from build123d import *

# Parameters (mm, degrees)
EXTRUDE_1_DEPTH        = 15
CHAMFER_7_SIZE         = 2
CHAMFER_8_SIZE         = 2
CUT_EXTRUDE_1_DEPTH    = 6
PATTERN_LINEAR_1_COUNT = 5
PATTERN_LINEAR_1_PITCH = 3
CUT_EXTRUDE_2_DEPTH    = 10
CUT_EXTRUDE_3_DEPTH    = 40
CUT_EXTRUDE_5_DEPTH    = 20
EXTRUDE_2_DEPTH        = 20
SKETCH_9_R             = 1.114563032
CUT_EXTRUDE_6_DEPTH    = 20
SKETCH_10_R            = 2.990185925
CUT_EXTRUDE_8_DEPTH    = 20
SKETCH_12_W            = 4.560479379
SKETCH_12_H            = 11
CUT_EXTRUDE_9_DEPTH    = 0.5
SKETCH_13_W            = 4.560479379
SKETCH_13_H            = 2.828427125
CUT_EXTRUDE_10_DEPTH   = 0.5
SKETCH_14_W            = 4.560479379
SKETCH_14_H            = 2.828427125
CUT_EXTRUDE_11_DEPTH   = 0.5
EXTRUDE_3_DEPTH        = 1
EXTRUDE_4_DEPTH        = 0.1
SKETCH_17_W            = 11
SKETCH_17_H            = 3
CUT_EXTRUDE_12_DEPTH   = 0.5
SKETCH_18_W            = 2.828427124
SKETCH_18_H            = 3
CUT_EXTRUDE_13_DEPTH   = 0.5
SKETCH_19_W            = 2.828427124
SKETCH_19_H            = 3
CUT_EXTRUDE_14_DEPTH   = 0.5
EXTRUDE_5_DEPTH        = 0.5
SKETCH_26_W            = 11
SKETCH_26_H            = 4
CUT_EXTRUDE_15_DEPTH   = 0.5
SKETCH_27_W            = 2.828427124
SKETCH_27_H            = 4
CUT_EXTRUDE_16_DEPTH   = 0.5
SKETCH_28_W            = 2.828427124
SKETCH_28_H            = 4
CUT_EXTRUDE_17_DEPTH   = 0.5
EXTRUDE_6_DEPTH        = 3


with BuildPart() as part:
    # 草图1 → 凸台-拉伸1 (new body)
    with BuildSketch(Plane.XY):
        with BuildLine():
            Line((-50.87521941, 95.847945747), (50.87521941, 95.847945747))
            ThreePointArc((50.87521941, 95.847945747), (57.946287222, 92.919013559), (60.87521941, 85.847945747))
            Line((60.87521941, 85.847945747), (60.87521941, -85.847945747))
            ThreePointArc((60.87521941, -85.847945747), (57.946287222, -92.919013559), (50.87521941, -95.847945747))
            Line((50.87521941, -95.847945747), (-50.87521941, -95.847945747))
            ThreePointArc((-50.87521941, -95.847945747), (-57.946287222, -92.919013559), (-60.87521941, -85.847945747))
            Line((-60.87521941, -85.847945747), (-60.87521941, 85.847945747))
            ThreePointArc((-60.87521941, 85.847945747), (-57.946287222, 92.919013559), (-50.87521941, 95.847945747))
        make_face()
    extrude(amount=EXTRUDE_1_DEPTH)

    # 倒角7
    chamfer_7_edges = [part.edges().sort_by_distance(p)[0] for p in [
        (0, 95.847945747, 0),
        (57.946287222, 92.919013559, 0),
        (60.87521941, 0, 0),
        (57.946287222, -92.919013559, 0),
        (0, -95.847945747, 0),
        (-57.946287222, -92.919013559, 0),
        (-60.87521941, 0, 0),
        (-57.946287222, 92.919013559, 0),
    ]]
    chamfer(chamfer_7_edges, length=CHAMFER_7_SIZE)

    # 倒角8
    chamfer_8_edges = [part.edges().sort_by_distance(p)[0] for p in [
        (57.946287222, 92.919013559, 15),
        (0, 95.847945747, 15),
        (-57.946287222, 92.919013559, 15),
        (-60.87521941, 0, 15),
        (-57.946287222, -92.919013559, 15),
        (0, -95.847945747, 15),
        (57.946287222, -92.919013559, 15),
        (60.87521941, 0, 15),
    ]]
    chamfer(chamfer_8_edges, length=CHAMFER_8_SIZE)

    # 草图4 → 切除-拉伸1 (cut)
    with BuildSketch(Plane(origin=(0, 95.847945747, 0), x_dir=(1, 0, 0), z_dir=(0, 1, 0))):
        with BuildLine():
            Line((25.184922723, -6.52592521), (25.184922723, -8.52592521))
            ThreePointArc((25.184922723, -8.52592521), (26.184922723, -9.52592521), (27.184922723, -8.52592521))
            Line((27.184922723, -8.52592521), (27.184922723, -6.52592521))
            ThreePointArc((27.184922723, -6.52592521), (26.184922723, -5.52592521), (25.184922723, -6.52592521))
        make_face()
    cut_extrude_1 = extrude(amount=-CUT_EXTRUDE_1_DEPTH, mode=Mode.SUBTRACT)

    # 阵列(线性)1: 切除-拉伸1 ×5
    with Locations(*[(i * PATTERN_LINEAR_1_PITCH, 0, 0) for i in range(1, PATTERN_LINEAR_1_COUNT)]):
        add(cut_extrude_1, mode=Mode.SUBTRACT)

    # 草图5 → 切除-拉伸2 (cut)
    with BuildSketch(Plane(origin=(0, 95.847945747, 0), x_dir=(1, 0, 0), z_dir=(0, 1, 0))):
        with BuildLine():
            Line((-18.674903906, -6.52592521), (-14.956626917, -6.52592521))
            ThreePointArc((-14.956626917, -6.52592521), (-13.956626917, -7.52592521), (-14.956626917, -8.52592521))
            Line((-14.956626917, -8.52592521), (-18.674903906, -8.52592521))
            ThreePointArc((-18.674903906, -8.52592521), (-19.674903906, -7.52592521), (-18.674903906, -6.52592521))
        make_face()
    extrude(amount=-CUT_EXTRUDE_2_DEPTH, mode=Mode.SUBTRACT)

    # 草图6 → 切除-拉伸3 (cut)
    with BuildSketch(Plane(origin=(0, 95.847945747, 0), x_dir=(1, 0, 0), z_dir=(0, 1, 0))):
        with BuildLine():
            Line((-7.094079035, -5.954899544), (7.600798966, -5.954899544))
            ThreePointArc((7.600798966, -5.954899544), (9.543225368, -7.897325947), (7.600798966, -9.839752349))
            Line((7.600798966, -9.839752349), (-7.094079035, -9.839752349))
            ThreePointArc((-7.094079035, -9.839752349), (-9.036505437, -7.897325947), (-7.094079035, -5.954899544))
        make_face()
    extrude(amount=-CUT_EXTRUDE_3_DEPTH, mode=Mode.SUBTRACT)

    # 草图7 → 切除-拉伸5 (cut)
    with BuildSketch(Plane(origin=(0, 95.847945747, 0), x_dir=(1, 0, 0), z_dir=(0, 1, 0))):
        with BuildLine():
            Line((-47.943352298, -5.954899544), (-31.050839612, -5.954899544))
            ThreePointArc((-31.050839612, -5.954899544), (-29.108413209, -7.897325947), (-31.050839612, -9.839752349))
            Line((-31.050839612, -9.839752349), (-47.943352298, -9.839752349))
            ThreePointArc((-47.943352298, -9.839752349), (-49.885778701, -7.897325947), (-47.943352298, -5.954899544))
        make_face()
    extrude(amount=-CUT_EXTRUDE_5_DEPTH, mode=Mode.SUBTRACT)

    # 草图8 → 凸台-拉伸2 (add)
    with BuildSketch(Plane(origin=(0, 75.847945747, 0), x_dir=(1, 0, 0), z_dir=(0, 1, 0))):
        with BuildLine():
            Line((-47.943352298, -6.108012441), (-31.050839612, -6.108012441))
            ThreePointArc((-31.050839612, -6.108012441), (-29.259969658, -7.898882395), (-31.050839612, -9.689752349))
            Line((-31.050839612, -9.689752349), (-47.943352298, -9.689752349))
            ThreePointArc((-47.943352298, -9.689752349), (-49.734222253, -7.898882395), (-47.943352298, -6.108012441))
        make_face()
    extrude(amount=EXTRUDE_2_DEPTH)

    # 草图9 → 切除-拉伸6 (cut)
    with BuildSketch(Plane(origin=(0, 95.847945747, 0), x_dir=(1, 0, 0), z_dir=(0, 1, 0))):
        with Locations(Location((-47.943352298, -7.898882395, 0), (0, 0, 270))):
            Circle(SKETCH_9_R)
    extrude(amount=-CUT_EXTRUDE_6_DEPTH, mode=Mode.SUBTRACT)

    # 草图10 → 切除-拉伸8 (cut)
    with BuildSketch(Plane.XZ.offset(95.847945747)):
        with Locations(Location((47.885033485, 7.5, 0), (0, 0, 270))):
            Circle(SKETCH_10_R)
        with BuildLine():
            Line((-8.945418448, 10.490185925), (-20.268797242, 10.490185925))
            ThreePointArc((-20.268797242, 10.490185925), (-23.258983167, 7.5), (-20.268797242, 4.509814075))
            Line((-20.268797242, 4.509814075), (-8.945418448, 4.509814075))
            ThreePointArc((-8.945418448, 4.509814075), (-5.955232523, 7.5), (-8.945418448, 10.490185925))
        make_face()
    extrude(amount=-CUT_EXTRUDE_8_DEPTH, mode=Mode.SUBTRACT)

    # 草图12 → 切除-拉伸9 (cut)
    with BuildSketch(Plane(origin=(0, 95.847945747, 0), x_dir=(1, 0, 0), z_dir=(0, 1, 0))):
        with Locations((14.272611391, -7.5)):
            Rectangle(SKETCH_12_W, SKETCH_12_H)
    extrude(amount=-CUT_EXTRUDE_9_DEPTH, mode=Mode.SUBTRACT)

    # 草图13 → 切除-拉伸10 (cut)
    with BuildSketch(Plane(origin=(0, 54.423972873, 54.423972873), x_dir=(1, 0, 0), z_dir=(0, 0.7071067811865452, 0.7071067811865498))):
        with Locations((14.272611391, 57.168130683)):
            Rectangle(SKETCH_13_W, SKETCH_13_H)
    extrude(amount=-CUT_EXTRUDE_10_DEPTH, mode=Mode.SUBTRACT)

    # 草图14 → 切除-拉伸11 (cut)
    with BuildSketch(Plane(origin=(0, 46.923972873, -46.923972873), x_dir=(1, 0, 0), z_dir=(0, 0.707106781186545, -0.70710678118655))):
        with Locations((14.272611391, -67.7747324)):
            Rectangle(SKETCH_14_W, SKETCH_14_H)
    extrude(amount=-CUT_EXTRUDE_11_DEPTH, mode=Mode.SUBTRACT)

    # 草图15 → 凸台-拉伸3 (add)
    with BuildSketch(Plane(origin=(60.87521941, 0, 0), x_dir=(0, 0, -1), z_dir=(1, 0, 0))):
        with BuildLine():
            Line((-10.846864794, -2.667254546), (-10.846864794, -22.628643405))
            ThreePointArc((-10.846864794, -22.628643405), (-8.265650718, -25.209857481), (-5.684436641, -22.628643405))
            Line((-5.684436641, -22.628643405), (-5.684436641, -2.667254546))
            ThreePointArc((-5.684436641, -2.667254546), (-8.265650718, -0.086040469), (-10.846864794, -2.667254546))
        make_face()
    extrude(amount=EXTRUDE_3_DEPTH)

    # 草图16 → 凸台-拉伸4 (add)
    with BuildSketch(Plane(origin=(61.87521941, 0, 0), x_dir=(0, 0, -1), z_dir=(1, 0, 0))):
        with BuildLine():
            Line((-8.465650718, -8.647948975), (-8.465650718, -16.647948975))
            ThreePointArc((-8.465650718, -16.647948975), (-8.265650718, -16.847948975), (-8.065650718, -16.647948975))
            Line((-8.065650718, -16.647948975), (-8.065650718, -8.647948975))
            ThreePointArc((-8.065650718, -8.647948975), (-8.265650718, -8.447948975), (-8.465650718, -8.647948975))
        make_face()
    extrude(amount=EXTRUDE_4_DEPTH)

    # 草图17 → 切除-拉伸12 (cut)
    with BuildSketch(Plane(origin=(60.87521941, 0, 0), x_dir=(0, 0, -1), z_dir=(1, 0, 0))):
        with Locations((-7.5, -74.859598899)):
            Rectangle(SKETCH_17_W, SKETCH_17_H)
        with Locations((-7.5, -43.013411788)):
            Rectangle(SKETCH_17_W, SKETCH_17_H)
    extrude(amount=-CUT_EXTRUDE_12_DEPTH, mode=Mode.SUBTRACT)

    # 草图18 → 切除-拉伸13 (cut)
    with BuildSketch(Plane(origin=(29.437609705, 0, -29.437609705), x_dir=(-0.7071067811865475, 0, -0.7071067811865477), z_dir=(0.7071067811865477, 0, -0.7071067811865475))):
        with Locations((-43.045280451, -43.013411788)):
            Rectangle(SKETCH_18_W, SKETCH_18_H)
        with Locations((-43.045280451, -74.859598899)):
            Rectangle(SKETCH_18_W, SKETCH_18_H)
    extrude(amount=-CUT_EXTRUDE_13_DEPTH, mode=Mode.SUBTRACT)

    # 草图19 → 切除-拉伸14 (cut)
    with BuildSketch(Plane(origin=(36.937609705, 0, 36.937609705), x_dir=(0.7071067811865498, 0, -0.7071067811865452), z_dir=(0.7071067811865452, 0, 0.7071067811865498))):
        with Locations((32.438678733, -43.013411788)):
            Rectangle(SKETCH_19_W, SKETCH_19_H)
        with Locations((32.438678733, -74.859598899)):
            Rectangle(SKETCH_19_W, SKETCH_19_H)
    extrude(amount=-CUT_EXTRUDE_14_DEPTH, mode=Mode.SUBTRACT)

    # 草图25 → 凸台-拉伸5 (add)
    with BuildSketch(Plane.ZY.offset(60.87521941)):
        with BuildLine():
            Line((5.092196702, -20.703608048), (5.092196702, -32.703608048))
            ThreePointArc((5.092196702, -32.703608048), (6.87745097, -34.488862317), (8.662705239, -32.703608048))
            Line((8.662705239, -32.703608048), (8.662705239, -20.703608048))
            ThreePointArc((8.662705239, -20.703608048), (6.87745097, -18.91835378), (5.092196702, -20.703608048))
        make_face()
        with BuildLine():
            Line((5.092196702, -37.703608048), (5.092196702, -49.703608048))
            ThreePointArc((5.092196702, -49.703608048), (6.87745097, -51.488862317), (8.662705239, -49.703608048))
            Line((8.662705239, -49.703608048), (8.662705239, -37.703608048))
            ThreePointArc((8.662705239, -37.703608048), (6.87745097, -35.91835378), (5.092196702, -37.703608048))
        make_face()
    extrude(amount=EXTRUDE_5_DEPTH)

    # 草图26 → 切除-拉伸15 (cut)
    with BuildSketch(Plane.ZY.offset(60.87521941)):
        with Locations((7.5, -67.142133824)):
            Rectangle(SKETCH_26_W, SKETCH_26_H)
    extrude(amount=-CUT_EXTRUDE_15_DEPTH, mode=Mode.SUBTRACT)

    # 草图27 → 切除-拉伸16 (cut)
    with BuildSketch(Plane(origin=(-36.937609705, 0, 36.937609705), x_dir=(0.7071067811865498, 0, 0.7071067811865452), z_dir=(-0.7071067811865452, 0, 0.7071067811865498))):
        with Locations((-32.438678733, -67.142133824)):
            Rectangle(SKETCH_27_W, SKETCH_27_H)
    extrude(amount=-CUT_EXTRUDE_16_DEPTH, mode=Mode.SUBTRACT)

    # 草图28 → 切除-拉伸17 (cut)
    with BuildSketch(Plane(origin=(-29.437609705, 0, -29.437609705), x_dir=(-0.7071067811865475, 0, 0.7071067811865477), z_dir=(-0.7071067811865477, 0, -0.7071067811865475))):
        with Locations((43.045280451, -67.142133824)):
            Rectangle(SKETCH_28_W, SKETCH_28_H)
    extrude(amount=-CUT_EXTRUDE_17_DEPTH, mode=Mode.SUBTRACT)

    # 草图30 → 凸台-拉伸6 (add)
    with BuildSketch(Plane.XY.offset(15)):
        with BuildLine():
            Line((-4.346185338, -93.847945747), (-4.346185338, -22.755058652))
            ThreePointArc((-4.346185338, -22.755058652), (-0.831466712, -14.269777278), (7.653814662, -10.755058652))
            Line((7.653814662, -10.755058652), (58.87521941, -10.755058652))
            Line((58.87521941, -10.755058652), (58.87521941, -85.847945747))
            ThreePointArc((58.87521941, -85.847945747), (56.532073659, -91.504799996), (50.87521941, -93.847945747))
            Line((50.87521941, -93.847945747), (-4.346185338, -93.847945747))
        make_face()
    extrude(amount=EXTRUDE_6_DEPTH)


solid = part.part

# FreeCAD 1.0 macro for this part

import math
import FreeCAD as App
import Part
import Sketcher
from FreeCAD import Vector
Q = App.Units.Quantity


def edges_at(feature, points):
    """Names of the edges that pass closest to the given points."""
    edges = feature.Shape.Edges
    near = lambda p: min(range(len(edges)), key=lambda i: edges[i].distToShape(Part.Vertex(*p))[0])
    return sorted({f"Edge{near(p) + 1}" for p in points})

doc = App.newDocument("Part")
body = doc.addObject("PartDesign::Body", "Body")

# Sketch on XY plane
sketch1 = doc.addObject("Sketcher::SketchObject", "Sketch")
body.addObject(sketch1)
sketch1.AttachmentSupport = (doc.XY_Plane, [""])
sketch1.MapMode = "FlatFace"
sketch1.addGeometry(Part.LineSegment(Vector(51, 96, 0), Vector(-51, 96, 0)), False)
sketch1.addGeometry(Part.ArcOfCircle(Part.Circle(Vector(-51, 86, 0), Vector(0, 0, 1), 10), math.radians(90), math.radians(180)), False)
sketch1.addGeometry(Part.LineSegment(Vector(-61, 86, 0), Vector(-61, -86, 0)), False)
sketch1.addGeometry(Part.ArcOfCircle(Part.Circle(Vector(-51, -86, 0), Vector(0, 0, 1), 10), math.radians(180), math.radians(270)), False)
sketch1.addGeometry(Part.LineSegment(Vector(-51, -96, 0), Vector(51, -96, 0)), False)
sketch1.addGeometry(Part.ArcOfCircle(Part.Circle(Vector(51, -86, 0), Vector(0, 0, 1), 10), math.radians(-90), math.radians(0)), False)
sketch1.addGeometry(Part.LineSegment(Vector(61, -86, 0), Vector(61, 86, 0)), False)
sketch1.addGeometry(Part.ArcOfCircle(Part.Circle(Vector(51, 86, 0), Vector(0, 0, 1), 10), math.radians(0), math.radians(90)), False)
sketch1.addConstraint(Sketcher.Constraint("Tangent", 0, 2, 1, 1))
sketch1.addConstraint(Sketcher.Constraint("Tangent", 1, 2, 2, 1))
sketch1.addConstraint(Sketcher.Constraint("Tangent", 2, 2, 3, 1))
sketch1.addConstraint(Sketcher.Constraint("Tangent", 3, 2, 4, 1))
sketch1.addConstraint(Sketcher.Constraint("Tangent", 4, 2, 5, 1))
sketch1.addConstraint(Sketcher.Constraint("Tangent", 5, 2, 6, 1))
sketch1.addConstraint(Sketcher.Constraint("Tangent", 6, 2, 7, 1))
sketch1.addConstraint(Sketcher.Constraint("Tangent", 7, 2, 0, 1))
sketch1.addConstraint(Sketcher.Constraint("Horizontal", 0))
sketch1.addConstraint(Sketcher.Constraint("Vertical", 2))
sketch1.addConstraint(Sketcher.Constraint("Horizontal", 4))
sketch1.addConstraint(Sketcher.Constraint("Vertical", 6))
sketch1.addConstraint(Sketcher.Constraint("Equal", 1, 3))
sketch1.addConstraint(Sketcher.Constraint("Equal", 3, 5))
sketch1.addConstraint(Sketcher.Constraint("Equal", 5, 7))
sketch1.addConstraint(Sketcher.Constraint("Symmetric", 1, 3, 5, 3, -1, 1))
sketch1.addConstraint(Sketcher.Constraint("Radius", 1, Q("10 mm")))
sketch1.addConstraint(Sketcher.Constraint("DistanceX", 0, 2, 0, 1, Q("101.750439 mm")))
sketch1.addConstraint(Sketcher.Constraint("DistanceY", 2, 2, 2, 1, Q("171.695891 mm")))
pad1 = doc.addObject("PartDesign::Pad", "Pad")
body.addObject(pad1)
pad1.Profile = sketch1
pad1.Length = 15
doc.recompute()

chamfer = doc.addObject("PartDesign::Chamfer", "Chamfer")
body.addObject(chamfer)
chamfer.Base = (pad1, edges_at(pad1, [
    (0, 95.848, 0),
    (57.946, 92.919, 0),
    (60.875, 0, 0),
    (57.946, -92.919, 0),
    (0, -95.848, 0),
    (-57.946, -92.919, 0),
    (-60.875, 0, 0),
    (-57.946, 92.919, 0),
]))
chamfer.Size = 2
doc.recompute()

chamfer2 = doc.addObject("PartDesign::Chamfer", "Chamfer001")
body.addObject(chamfer2)
chamfer2.Base = (chamfer, edges_at(chamfer, [
    (57.946, 92.919, 15),
    (0, 95.848, 15),
    (-57.946, 92.919, 15),
    (-60.875, 0, 15),
    (-57.946, -92.919, 15),
    (0, -95.848, 15),
    (57.946, -92.919, 15),
    (60.875, 0, 15),
]))
chamfer2.Size = 2

# Sketch on XZ plane
sketch2 = doc.addObject("Sketcher::SketchObject", "Sketch001")
body.addObject(sketch2)
sketch2.AttachmentSupport = (doc.XZ_Plane, [""])
sketch2.MapMode = "FlatFace"
sketch2.AttachmentOffset = App.Placement(Vector(0, 0, -95.847946), App.Rotation())
sketch2.addGeometry(Part.LineSegment(Vector(25.2, 6.5, 0), Vector(25.2, 8.5, 0)), False)
sketch2.addGeometry(Part.ArcOfCircle(Part.Circle(Vector(26.2, 8.5, 0), Vector(0, 0, 1), 1), math.radians(0), math.radians(180)), False)
sketch2.addGeometry(Part.LineSegment(Vector(27.2, 8.5, 0), Vector(27.2, 6.5, 0)), False)
sketch2.addGeometry(Part.ArcOfCircle(Part.Circle(Vector(26.2, 6.5, 0), Vector(0, 0, 1), 1), math.radians(180), math.radians(360)), False)
sketch2.addConstraint(Sketcher.Constraint("Tangent", 0, 2, 1, 2))
sketch2.addConstraint(Sketcher.Constraint("Tangent", 1, 1, 2, 1))
sketch2.addConstraint(Sketcher.Constraint("Tangent", 2, 2, 3, 2))
sketch2.addConstraint(Sketcher.Constraint("Tangent", 3, 1, 0, 1))
sketch2.addConstraint(Sketcher.Constraint("Vertical", 0))
sketch2.addConstraint(Sketcher.Constraint("Vertical", 2))
sketch2.addConstraint(Sketcher.Constraint("Radius", 1, Q("1 mm")))
sketch2.addConstraint(Sketcher.Constraint("DistanceY", 0, 1, 0, 2, Q("2 mm")))
sketch2.addConstraint(Sketcher.Constraint("DistanceX", -1, 1, 1, 3, Q("26.184923 mm")))
sketch2.addConstraint(Sketcher.Constraint("DistanceY", -1, 1, 1, 3, Q("8.525925 mm")))
pocket1 = doc.addObject("PartDesign::Pocket", "Pocket")
body.addObject(pocket1)
pocket1.Profile = sketch2
pocket1.Length = 6
pocket1.Reversed = True
doc.recompute()

linearpattern = doc.addObject("PartDesign::LinearPattern", "LinearPattern")
body.addObject(linearpattern)
linearpattern.Originals = [pocket1]
linearpattern.Direction = (doc.X_Axis, [""])
linearpattern.Mode = "offset"
linearpattern.Offset = 3
linearpattern.Occurrences = 5
body.Tip = linearpattern

# Sketch on XZ plane
sketch3 = doc.addObject("Sketcher::SketchObject", "Sketch002")
body.addObject(sketch3)
sketch3.AttachmentSupport = (doc.XZ_Plane, [""])
sketch3.MapMode = "FlatFace"
sketch3.AttachmentOffset = App.Placement(Vector(0, 0, -95.847946), App.Rotation())
sketch3.addGeometry(Part.LineSegment(Vector(-15, 6.5, 0), Vector(-18.7, 6.5, 0)), False)
sketch3.addGeometry(Part.ArcOfCircle(Part.Circle(Vector(-18.7, 7.5, 0), Vector(0, 0, 1), 1), math.radians(90), math.radians(270)), False)
sketch3.addGeometry(Part.LineSegment(Vector(-18.7, 8.5, 0), Vector(-15, 8.5, 0)), False)
sketch3.addGeometry(Part.ArcOfCircle(Part.Circle(Vector(-15, 7.5, 0), Vector(0, 0, 1), 1), math.radians(-90), math.radians(90)), False)
sketch3.addConstraint(Sketcher.Constraint("Tangent", 0, 2, 1, 2))
sketch3.addConstraint(Sketcher.Constraint("Tangent", 1, 1, 2, 1))
sketch3.addConstraint(Sketcher.Constraint("Tangent", 2, 2, 3, 2))
sketch3.addConstraint(Sketcher.Constraint("Tangent", 3, 1, 0, 1))
sketch3.addConstraint(Sketcher.Constraint("Horizontal", 0))
sketch3.addConstraint(Sketcher.Constraint("Horizontal", 2))
sketch3.addConstraint(Sketcher.Constraint("Radius", 1, Q("1 mm")))
sketch3.addConstraint(Sketcher.Constraint("DistanceX", 0, 2, 0, 1, Q("3.718277 mm")))
sketch3.addConstraint(Sketcher.Constraint("DistanceX", 1, 3, -1, 1, Q("18.674904 mm")))
sketch3.addConstraint(Sketcher.Constraint("DistanceY", -1, 1, 1, 3, Q("7.525925 mm")))
pocket2 = doc.addObject("PartDesign::Pocket", "Pocket001")
body.addObject(pocket2)
pocket2.Profile = sketch3
pocket2.Length = 10
pocket2.Reversed = True

# Sketch on XZ plane
sketch4 = doc.addObject("Sketcher::SketchObject", "Sketch003")
body.addObject(sketch4)
sketch4.AttachmentSupport = (doc.XZ_Plane, [""])
sketch4.MapMode = "FlatFace"
sketch4.AttachmentOffset = App.Placement(Vector(0, 0, -95.847946), App.Rotation())
sketch4.addGeometry(Part.LineSegment(Vector(7.6, 6, 0), Vector(-7.1, 6, 0)), False)
sketch4.addGeometry(Part.ArcOfCircle(Part.Circle(Vector(-7.1, 7.9, 0), Vector(0, 0, 1), 1.9), math.radians(90), math.radians(270)), False)
sketch4.addGeometry(Part.LineSegment(Vector(-7.1, 9.8, 0), Vector(7.6, 9.8, 0)), False)
sketch4.addGeometry(Part.ArcOfCircle(Part.Circle(Vector(7.6, 7.9, 0), Vector(0, 0, 1), 1.9), math.radians(-90), math.radians(90)), False)
sketch4.addConstraint(Sketcher.Constraint("Tangent", 0, 2, 1, 2))
sketch4.addConstraint(Sketcher.Constraint("Tangent", 1, 1, 2, 1))
sketch4.addConstraint(Sketcher.Constraint("Tangent", 2, 2, 3, 2))
sketch4.addConstraint(Sketcher.Constraint("Tangent", 3, 1, 0, 1))
sketch4.addConstraint(Sketcher.Constraint("Horizontal", 0))
sketch4.addConstraint(Sketcher.Constraint("Horizontal", 2))
sketch4.addConstraint(Sketcher.Constraint("Radius", 1, Q("1.942426 mm")))
sketch4.addConstraint(Sketcher.Constraint("DistanceX", 0, 2, 0, 1, Q("14.694878 mm")))
sketch4.addConstraint(Sketcher.Constraint("DistanceX", -1, 1, 3, 3, Q("7.600799 mm")))
sketch4.addConstraint(Sketcher.Constraint("DistanceY", -1, 1, 0, 2, Q("5.9549 mm")))
pocket3 = doc.addObject("PartDesign::Pocket", "Pocket002")
body.addObject(pocket3)
pocket3.Profile = sketch4
pocket3.Length = 40
pocket3.Reversed = True

# Sketch on XZ plane
sketch5 = doc.addObject("Sketcher::SketchObject", "Sketch004")
body.addObject(sketch5)
sketch5.AttachmentSupport = (doc.XZ_Plane, [""])
sketch5.MapMode = "FlatFace"
sketch5.AttachmentOffset = App.Placement(Vector(0, 0, -95.847946), App.Rotation())
sketch5.addGeometry(Part.LineSegment(Vector(-31.1, 6, 0), Vector(-47.9, 6, 0)), False)
sketch5.addGeometry(Part.ArcOfCircle(Part.Circle(Vector(-47.9, 7.9, 0), Vector(0, 0, 1), 1.9), math.radians(90), math.radians(270)), False)
sketch5.addGeometry(Part.LineSegment(Vector(-47.9, 9.8, 0), Vector(-31.1, 9.8, 0)), False)
sketch5.addGeometry(Part.ArcOfCircle(Part.Circle(Vector(-31.1, 7.9, 0), Vector(0, 0, 1), 1.9), math.radians(-90), math.radians(90)), False)
sketch5.addConstraint(Sketcher.Constraint("Tangent", 0, 2, 1, 2))
sketch5.addConstraint(Sketcher.Constraint("Tangent", 1, 1, 2, 1))
sketch5.addConstraint(Sketcher.Constraint("Tangent", 2, 2, 3, 2))
sketch5.addConstraint(Sketcher.Constraint("Tangent", 3, 1, 0, 1))
sketch5.addConstraint(Sketcher.Constraint("Horizontal", 0))
sketch5.addConstraint(Sketcher.Constraint("Horizontal", 2))
sketch5.addConstraint(Sketcher.Constraint("Radius", 1, Q("1.942426 mm")))
sketch5.addConstraint(Sketcher.Constraint("DistanceY", -1, 1, 0, 2, Q("5.9549 mm")))
sketch5.addConstraint(Sketcher.Constraint("DistanceX", 0, 2, 0, 1, Q("16.892513 mm")))
sketch5.addConstraint(Sketcher.Constraint("DistanceX", 3, 3, -1, 1, Q("31.05084 mm")))
pocket4 = doc.addObject("PartDesign::Pocket", "Pocket003")
body.addObject(pocket4)
pocket4.Profile = sketch5
pocket4.Length = 20
pocket4.Reversed = True

# Sketch on XZ plane
sketch6 = doc.addObject("Sketcher::SketchObject", "Sketch005")
body.addObject(sketch6)
sketch6.AttachmentSupport = (doc.XZ_Plane, [""])
sketch6.MapMode = "FlatFace"
sketch6.AttachmentOffset = App.Placement(Vector(0, 0, -75.847946), App.Rotation())
sketch6.addGeometry(Part.LineSegment(Vector(-31.1, 6.1, 0), Vector(-47.9, 6.1, 0)), False)
sketch6.addGeometry(Part.ArcOfCircle(Part.Circle(Vector(-47.9, 7.9, 0), Vector(0, 0, 1), 1.8), math.radians(90), math.radians(270)), False)
sketch6.addGeometry(Part.LineSegment(Vector(-47.9, 9.7, 0), Vector(-31.1, 9.7, 0)), False)
sketch6.addGeometry(Part.ArcOfCircle(Part.Circle(Vector(-31.1, 7.9, 0), Vector(0, 0, 1), 1.8), math.radians(-90), math.radians(90)), False)
sketch6.addConstraint(Sketcher.Constraint("Tangent", 0, 2, 1, 2))
sketch6.addConstraint(Sketcher.Constraint("Tangent", 1, 1, 2, 1))
sketch6.addConstraint(Sketcher.Constraint("Tangent", 2, 2, 3, 2))
sketch6.addConstraint(Sketcher.Constraint("Tangent", 3, 1, 0, 1))
sketch6.addConstraint(Sketcher.Constraint("Horizontal", 0))
sketch6.addConstraint(Sketcher.Constraint("Horizontal", 2))
sketch6.addConstraint(Sketcher.Constraint("Radius", 1, Q("1.79087 mm")))
sketch6.addConstraint(Sketcher.Constraint("DistanceX", 0, 2, 0, 1, Q("16.892513 mm")))
sketch6.addConstraint(Sketcher.Constraint("DistanceX", 3, 3, -1, 1, Q("31.05084 mm")))
sketch6.addConstraint(Sketcher.Constraint("DistanceY", -1, 1, 1, 3, Q("7.898882 mm")))
pad2 = doc.addObject("PartDesign::Pad", "Pad001")
body.addObject(pad2)
pad2.Profile = sketch6
pad2.Length = 20
pad2.Reversed = True

# Sketch on XZ plane
sketch7 = doc.addObject("Sketcher::SketchObject", "Sketch006")
body.addObject(sketch7)
sketch7.AttachmentSupport = (doc.XZ_Plane, [""])
sketch7.MapMode = "FlatFace"
sketch7.AttachmentOffset = App.Placement(Vector(0, 0, -95.847946), App.Rotation())
sketch7.addGeometry(Part.Circle(Vector(-47.9, 7.9, 0), Vector(0, 0, 1), 1.1), False)
sketch7.addConstraint(Sketcher.Constraint("Diameter", 0, Q("2.229126 mm")))
sketch7.addConstraint(Sketcher.Constraint("DistanceX", 0, 3, -1, 1, Q("47.943352 mm")))
sketch7.addConstraint(Sketcher.Constraint("DistanceY", -1, 1, 0, 3, Q("7.898882 mm")))
pocket5 = doc.addObject("PartDesign::Pocket", "Pocket004")
body.addObject(pocket5)
pocket5.Profile = sketch7
pocket5.Length = 20
pocket5.Reversed = True

# Sketch on XZ plane
sketch8 = doc.addObject("Sketcher::SketchObject", "Sketch007")
body.addObject(sketch8)
sketch8.AttachmentSupport = (doc.XZ_Plane, [""])
sketch8.MapMode = "FlatFace"
sketch8.AttachmentOffset = App.Placement(Vector(0, 0, 95.847946), App.Rotation())
sketch8.addGeometry(Part.Circle(Vector(47.9, 7.5, 0), Vector(0, 0, 1), 3), False)
sketch8.addGeometry(Part.LineSegment(Vector(-8.9, 10.5, 0), Vector(-20.3, 10.5, 0)), False)
sketch8.addGeometry(Part.ArcOfCircle(Part.Circle(Vector(-20.3, 7.5, 0), Vector(0, 0, 1), 3), math.radians(90), math.radians(270)), False)
sketch8.addGeometry(Part.LineSegment(Vector(-20.3, 4.5, 0), Vector(-8.9, 4.5, 0)), False)
sketch8.addGeometry(Part.ArcOfCircle(Part.Circle(Vector(-8.9, 7.5, 0), Vector(0, 0, 1), 3), math.radians(-90), math.radians(90)), False)
sketch8.addConstraint(Sketcher.Constraint("Tangent", 1, 2, 2, 1))
sketch8.addConstraint(Sketcher.Constraint("Tangent", 2, 2, 3, 1))
sketch8.addConstraint(Sketcher.Constraint("Tangent", 3, 2, 4, 1))
sketch8.addConstraint(Sketcher.Constraint("Tangent", 4, 2, 1, 1))
sketch8.addConstraint(Sketcher.Constraint("Horizontal", 1))
sketch8.addConstraint(Sketcher.Constraint("Horizontal", 3))
sketch8.addConstraint(Sketcher.Constraint("Equal", 0, 2))
sketch8.addConstraint(Sketcher.Constraint("Horizontal", 0, 3, 2, 3))
sketch8.addConstraint(Sketcher.Constraint("DistanceY", -1, 1, 0, 3, Q("7.5 mm")))
sketch8.addConstraint(Sketcher.Constraint("Diameter", 0, Q("5.980372 mm")))
sketch8.addConstraint(Sketcher.Constraint("DistanceX", 1, 2, 1, 1, Q("11.323379 mm")))
sketch8.addConstraint(Sketcher.Constraint("DistanceX", 4, 3, -1, 1, Q("8.945418 mm")))
sketch8.addConstraint(Sketcher.Constraint("DistanceX", 2, 3, 0, 3, Q("68.153831 mm")))
pocket6 = doc.addObject("PartDesign::Pocket", "Pocket005")
body.addObject(pocket6)
pocket6.Profile = sketch8
pocket6.Length = 20

# Sketch on XZ plane
sketch9 = doc.addObject("Sketcher::SketchObject", "Sketch008")
body.addObject(sketch9)
sketch9.AttachmentSupport = (doc.XZ_Plane, [""])
sketch9.MapMode = "FlatFace"
sketch9.AttachmentOffset = App.Placement(Vector(0, 0, -95.847946), App.Rotation())
sketch9.addGeometry(Part.LineSegment(Vector(12, 2, 0), Vector(12, 13, 0)), False)
sketch9.addGeometry(Part.LineSegment(Vector(12, 13, 0), Vector(16.6, 13, 0)), False)
sketch9.addGeometry(Part.LineSegment(Vector(16.6, 13, 0), Vector(16.6, 2, 0)), False)
sketch9.addGeometry(Part.LineSegment(Vector(16.6, 2, 0), Vector(12, 2, 0)), False)
sketch9.addConstraint(Sketcher.Constraint("Coincident", 0, 2, 1, 1))
sketch9.addConstraint(Sketcher.Constraint("Coincident", 1, 2, 2, 1))
sketch9.addConstraint(Sketcher.Constraint("Coincident", 2, 2, 3, 1))
sketch9.addConstraint(Sketcher.Constraint("Coincident", 3, 2, 0, 1))
sketch9.addConstraint(Sketcher.Constraint("Vertical", 0))
sketch9.addConstraint(Sketcher.Constraint("Horizontal", 1))
sketch9.addConstraint(Sketcher.Constraint("Vertical", 2))
sketch9.addConstraint(Sketcher.Constraint("Horizontal", 3))
sketch9.addConstraint(Sketcher.Constraint("DistanceY", 0, 1, 0, 2, Q("11 mm")))
sketch9.addConstraint(Sketcher.Constraint("DistanceY", -1, 1, 0, 2, Q("13 mm")))
sketch9.addConstraint(Sketcher.Constraint("DistanceX", 1, 1, 1, 2, Q("4.560479 mm")))
sketch9.addConstraint(Sketcher.Constraint("DistanceX", -1, 1, 0, 2, Q("11.992372 mm")))
pocket7 = doc.addObject("PartDesign::Pocket", "Pocket006")
body.addObject(pocket7)
pocket7.Profile = sketch9
pocket7.Length = 0.5
pocket7.Reversed = True

# Sketch on an angled plane
sketch10 = doc.addObject("Sketcher::SketchObject", "Sketch009")
body.addObject(sketch10)
sketch10.Placement = App.Placement(Vector(0, 54.423973, 54.423973), App.Rotation(Vector(1, 0, 0), Vector(0, 0.707106781, -0.707106781), Vector(0, 0.707106781, 0.707106781), "ZXY"))
sketch10.addGeometry(Part.LineSegment(Vector(12, 58.6, 0), Vector(12, 55.8, 0)), False)
sketch10.addGeometry(Part.LineSegment(Vector(12, 55.8, 0), Vector(16.6, 55.8, 0)), False)
sketch10.addGeometry(Part.LineSegment(Vector(16.6, 55.8, 0), Vector(16.6, 58.6, 0)), False)
sketch10.addGeometry(Part.LineSegment(Vector(16.6, 58.6, 0), Vector(12, 58.6, 0)), False)
sketch10.addConstraint(Sketcher.Constraint("Coincident", 0, 2, 1, 1))
sketch10.addConstraint(Sketcher.Constraint("Coincident", 1, 2, 2, 1))
sketch10.addConstraint(Sketcher.Constraint("Coincident", 2, 2, 3, 1))
sketch10.addConstraint(Sketcher.Constraint("Coincident", 3, 2, 0, 1))
sketch10.addConstraint(Sketcher.Constraint("Vertical", 0))
sketch10.addConstraint(Sketcher.Constraint("Horizontal", 1))
sketch10.addConstraint(Sketcher.Constraint("Vertical", 2))
sketch10.addConstraint(Sketcher.Constraint("Horizontal", 3))
sketch10.addConstraint(Sketcher.Constraint("DistanceX", 1, 1, 1, 2, Q("4.560479 mm")))
sketch10.addConstraint(Sketcher.Constraint("DistanceY", 0, 2, 0, 1, Q("2.828427 mm")))
sketch10.addConstraint(Sketcher.Constraint("DistanceX", -1, 1, 0, 2, Q("11.992372 mm")))
sketch10.addConstraint(Sketcher.Constraint("DistanceY", -1, 1, 0, 2, Q("55.753917 mm")))
pocket8 = doc.addObject("PartDesign::Pocket", "Pocket007")
body.addObject(pocket8)
pocket8.Profile = sketch10
pocket8.Length = 0.5

# Sketch on an angled plane
sketch11 = doc.addObject("Sketcher::SketchObject", "Sketch010")
body.addObject(sketch11)
sketch11.Placement = App.Placement(Vector(0, 46.923973, -46.923973), App.Rotation(Vector(1, 0, 0), Vector(0, -0.707106781, -0.707106781), Vector(0, 0.707106781, -0.707106781), "ZXY"))
sketch11.addGeometry(Part.LineSegment(Vector(12, -66.4, 0), Vector(12, -69.2, 0)), False)
sketch11.addGeometry(Part.LineSegment(Vector(12, -69.2, 0), Vector(16.6, -69.2, 0)), False)
sketch11.addGeometry(Part.LineSegment(Vector(16.6, -69.2, 0), Vector(16.6, -66.4, 0)), False)
sketch11.addGeometry(Part.LineSegment(Vector(16.6, -66.4, 0), Vector(12, -66.4, 0)), False)
sketch11.addConstraint(Sketcher.Constraint("Coincident", 0, 2, 1, 1))
sketch11.addConstraint(Sketcher.Constraint("Coincident", 1, 2, 2, 1))
sketch11.addConstraint(Sketcher.Constraint("Coincident", 2, 2, 3, 1))
sketch11.addConstraint(Sketcher.Constraint("Coincident", 3, 2, 0, 1))
sketch11.addConstraint(Sketcher.Constraint("Vertical", 0))
sketch11.addConstraint(Sketcher.Constraint("Horizontal", 1))
sketch11.addConstraint(Sketcher.Constraint("Vertical", 2))
sketch11.addConstraint(Sketcher.Constraint("Horizontal", 3))
sketch11.addConstraint(Sketcher.Constraint("DistanceX", 1, 1, 1, 2, Q("4.560479 mm")))
sketch11.addConstraint(Sketcher.Constraint("DistanceY", 0, 2, 0, 1, Q("2.828427 mm")))
sketch11.addConstraint(Sketcher.Constraint("DistanceX", -1, 1, 0, 2, Q("11.992372 mm")))
sketch11.addConstraint(Sketcher.Constraint("DistanceY", 2, 2, -1, 1, Q("66.360519 mm")))
pocket9 = doc.addObject("PartDesign::Pocket", "Pocket008")
body.addObject(pocket9)
pocket9.Profile = sketch11
pocket9.Length = 0.5

# Sketch on YZ plane
sketch12 = doc.addObject("Sketcher::SketchObject", "Sketch011")
body.addObject(sketch12)
sketch12.AttachmentSupport = (doc.YZ_Plane, [""])
sketch12.MapMode = "FlatFace"
sketch12.AttachmentOffset = App.Placement(Vector(0, 0, 60.875219), App.Rotation())
sketch12.addGeometry(Part.LineSegment(Vector(-2.7, 10.8, 0), Vector(-22.6, 10.8, 0)), False)
sketch12.addGeometry(Part.ArcOfCircle(Part.Circle(Vector(-22.6, 8.3, 0), Vector(0, 0, 1), 2.6), math.radians(90), math.radians(270)), False)
sketch12.addGeometry(Part.LineSegment(Vector(-22.6, 5.7, 0), Vector(-2.7, 5.7, 0)), False)
sketch12.addGeometry(Part.ArcOfCircle(Part.Circle(Vector(-2.7, 8.3, 0), Vector(0, 0, 1), 2.6), math.radians(-90), math.radians(90)), False)
sketch12.addConstraint(Sketcher.Constraint("Tangent", 0, 2, 1, 1))
sketch12.addConstraint(Sketcher.Constraint("Tangent", 1, 2, 2, 1))
sketch12.addConstraint(Sketcher.Constraint("Tangent", 2, 2, 3, 1))
sketch12.addConstraint(Sketcher.Constraint("Tangent", 3, 2, 0, 1))
sketch12.addConstraint(Sketcher.Constraint("Horizontal", 0))
sketch12.addConstraint(Sketcher.Constraint("Horizontal", 2))
sketch12.addConstraint(Sketcher.Constraint("Radius", 1, Q("2.581214 mm")))
sketch12.addConstraint(Sketcher.Constraint("DistanceX", 0, 2, 0, 1, Q("19.961389 mm")))
sketch12.addConstraint(Sketcher.Constraint("DistanceY", -1, 1, 1, 3, Q("8.265651 mm")))
sketch12.addConstraint(Sketcher.Constraint("DistanceX", 1, 3, -1, 1, Q("22.628643 mm")))
pad3 = doc.addObject("PartDesign::Pad", "Pad002")
body.addObject(pad3)
pad3.Profile = sketch12
pad3.Length = 1

# Sketch on YZ plane
sketch13 = doc.addObject("Sketcher::SketchObject", "Sketch012")
body.addObject(sketch13)
sketch13.AttachmentSupport = (doc.YZ_Plane, [""])
sketch13.MapMode = "FlatFace"
sketch13.AttachmentOffset = App.Placement(Vector(0, 0, 61.875219), App.Rotation())
sketch13.addGeometry(Part.LineSegment(Vector(-8.65, 8.47, 0), Vector(-16.65, 8.47, 0)), False)
sketch13.addGeometry(Part.ArcOfCircle(Part.Circle(Vector(-16.65, 8.27, 0), Vector(0, 0, 1), 0.2), math.radians(90), math.radians(270)), False)
sketch13.addGeometry(Part.LineSegment(Vector(-16.65, 8.07, 0), Vector(-8.65, 8.07, 0)), False)
sketch13.addGeometry(Part.ArcOfCircle(Part.Circle(Vector(-8.65, 8.27, 0), Vector(0, 0, 1), 0.2), math.radians(-90), math.radians(90)), False)
sketch13.addConstraint(Sketcher.Constraint("Tangent", 0, 2, 1, 1))
sketch13.addConstraint(Sketcher.Constraint("Tangent", 1, 2, 2, 1))
sketch13.addConstraint(Sketcher.Constraint("Tangent", 2, 2, 3, 1))
sketch13.addConstraint(Sketcher.Constraint("Tangent", 3, 2, 0, 1))
sketch13.addConstraint(Sketcher.Constraint("Horizontal", 0))
sketch13.addConstraint(Sketcher.Constraint("Horizontal", 2))
sketch13.addConstraint(Sketcher.Constraint("Radius", 1, Q("0.2 mm")))
sketch13.addConstraint(Sketcher.Constraint("DistanceX", 0, 2, 0, 1, Q("8 mm")))
sketch13.addConstraint(Sketcher.Constraint("DistanceX", 1, 3, -1, 1, Q("16.647949 mm")))
sketch13.addConstraint(Sketcher.Constraint("DistanceY", -1, 1, 1, 3, Q("8.265651 mm")))
pad4 = doc.addObject("PartDesign::Pad", "Pad003")
body.addObject(pad4)
pad4.Profile = sketch13
pad4.Length = 0.1

# Sketch on YZ plane
sketch14 = doc.addObject("Sketcher::SketchObject", "Sketch013")
body.addObject(sketch14)
sketch14.AttachmentSupport = (doc.YZ_Plane, [""])
sketch14.MapMode = "FlatFace"
sketch14.AttachmentOffset = App.Placement(Vector(0, 0, 60.875219), App.Rotation())
sketch14.addGeometry(Part.LineSegment(Vector(-73.4, 13, 0), Vector(-76.4, 13, 0)), False)
sketch14.addGeometry(Part.LineSegment(Vector(-76.4, 13, 0), Vector(-76.4, 2, 0)), False)
sketch14.addGeometry(Part.LineSegment(Vector(-76.4, 2, 0), Vector(-73.4, 2, 0)), False)
sketch14.addGeometry(Part.LineSegment(Vector(-73.4, 2, 0), Vector(-73.4, 13, 0)), False)
sketch14.addGeometry(Part.LineSegment(Vector(-41.5, 13, 0), Vector(-44.5, 13, 0)), False)
sketch14.addGeometry(Part.LineSegment(Vector(-44.5, 13, 0), Vector(-44.5, 2, 0)), False)
sketch14.addGeometry(Part.LineSegment(Vector(-44.5, 2, 0), Vector(-41.5, 2, 0)), False)
sketch14.addGeometry(Part.LineSegment(Vector(-41.5, 2, 0), Vector(-41.5, 13, 0)), False)
sketch14.addConstraint(Sketcher.Constraint("Coincident", 0, 2, 1, 1))
sketch14.addConstraint(Sketcher.Constraint("Coincident", 1, 2, 2, 1))
sketch14.addConstraint(Sketcher.Constraint("Coincident", 2, 2, 3, 1))
sketch14.addConstraint(Sketcher.Constraint("Coincident", 3, 2, 0, 1))
sketch14.addConstraint(Sketcher.Constraint("Coincident", 4, 2, 5, 1))
sketch14.addConstraint(Sketcher.Constraint("Coincident", 5, 2, 6, 1))
sketch14.addConstraint(Sketcher.Constraint("Coincident", 6, 2, 7, 1))
sketch14.addConstraint(Sketcher.Constraint("Coincident", 7, 2, 4, 1))
sketch14.addConstraint(Sketcher.Constraint("Horizontal", 0))
sketch14.addConstraint(Sketcher.Constraint("Vertical", 1))
sketch14.addConstraint(Sketcher.Constraint("Horizontal", 2))
sketch14.addConstraint(Sketcher.Constraint("Vertical", 3))
sketch14.addConstraint(Sketcher.Constraint("Horizontal", 4))
sketch14.addConstraint(Sketcher.Constraint("Vertical", 5))
sketch14.addConstraint(Sketcher.Constraint("Horizontal", 6))
sketch14.addConstraint(Sketcher.Constraint("Vertical", 7))
sketch14.addConstraint(Sketcher.Constraint("Horizontal", 3, 2, 4, 2))
sketch14.addConstraint(Sketcher.Constraint("Horizontal", 2, 2, 5, 2))
sketch14.addConstraint(Sketcher.Constraint("Equal", 2, 4))
sketch14.addConstraint(Sketcher.Constraint("DistanceX", 0, 2, 0, 1, Q("3 mm")))
sketch14.addConstraint(Sketcher.Constraint("DistanceY", 1, 2, 1, 1, Q("11 mm")))
sketch14.addConstraint(Sketcher.Constraint("DistanceY", -1, 1, 0, 2, Q("13 mm")))
sketch14.addConstraint(Sketcher.Constraint("DistanceX", 0, 2, -1, 1, Q("76.359599 mm")))
sketch14.addConstraint(Sketcher.Constraint("DistanceX", 4, 2, -1, 1, Q("44.513412 mm")))
pocket10 = doc.addObject("PartDesign::Pocket", "Pocket009")
body.addObject(pocket10)
pocket10.Profile = sketch14
pocket10.Length = 0.5

# Sketch on an angled plane
sketch15 = doc.addObject("Sketcher::SketchObject", "Sketch014")
body.addObject(sketch15)
sketch15.Placement = App.Placement(Vector(29.43761, 0, -29.43761), App.Rotation(Vector(-0.707106781, 0, -0.707106781), Vector(0, 0.999999999, 0), Vector(0.707106781, 0, -0.707106781), "ZXY"))
sketch15.addGeometry(Part.LineSegment(Vector(-44.5, -41.5, 0), Vector(-44.5, -44.5, 0)), False)
sketch15.addGeometry(Part.LineSegment(Vector(-44.5, -44.5, 0), Vector(-41.6, -44.5, 0)), False)
sketch15.addGeometry(Part.LineSegment(Vector(-41.6, -44.5, 0), Vector(-41.6, -41.5, 0)), False)
sketch15.addGeometry(Part.LineSegment(Vector(-41.6, -41.5, 0), Vector(-44.5, -41.5, 0)), False)
sketch15.addGeometry(Part.LineSegment(Vector(-44.5, -73.4, 0), Vector(-44.5, -76.4, 0)), False)
sketch15.addGeometry(Part.LineSegment(Vector(-44.5, -76.4, 0), Vector(-41.6, -76.4, 0)), False)
sketch15.addGeometry(Part.LineSegment(Vector(-41.6, -76.4, 0), Vector(-41.6, -73.4, 0)), False)
sketch15.addGeometry(Part.LineSegment(Vector(-41.6, -73.4, 0), Vector(-44.5, -73.4, 0)), False)
sketch15.addConstraint(Sketcher.Constraint("Coincident", 0, 2, 1, 1))
sketch15.addConstraint(Sketcher.Constraint("Coincident", 1, 2, 2, 1))
sketch15.addConstraint(Sketcher.Constraint("Coincident", 2, 2, 3, 1))
sketch15.addConstraint(Sketcher.Constraint("Coincident", 3, 2, 0, 1))
sketch15.addConstraint(Sketcher.Constraint("Coincident", 4, 2, 5, 1))
sketch15.addConstraint(Sketcher.Constraint("Coincident", 5, 2, 6, 1))
sketch15.addConstraint(Sketcher.Constraint("Coincident", 6, 2, 7, 1))
sketch15.addConstraint(Sketcher.Constraint("Coincident", 7, 2, 4, 1))
sketch15.addConstraint(Sketcher.Constraint("Vertical", 0))
sketch15.addConstraint(Sketcher.Constraint("Horizontal", 1))
sketch15.addConstraint(Sketcher.Constraint("Vertical", 2))
sketch15.addConstraint(Sketcher.Constraint("Horizontal", 3))
sketch15.addConstraint(Sketcher.Constraint("Vertical", 4))
sketch15.addConstraint(Sketcher.Constraint("Horizontal", 5))
sketch15.addConstraint(Sketcher.Constraint("Vertical", 6))
sketch15.addConstraint(Sketcher.Constraint("Horizontal", 7))
sketch15.addConstraint(Sketcher.Constraint("Vertical", 3, 2, 4, 2))
sketch15.addConstraint(Sketcher.Constraint("Vertical", 2, 2, 5, 2))
sketch15.addConstraint(Sketcher.Constraint("Equal", 2, 4))
sketch15.addConstraint(Sketcher.Constraint("DistanceY", 0, 2, 0, 1, Q("3 mm")))
sketch15.addConstraint(Sketcher.Constraint("DistanceY", 4, 2, -1, 1, Q("76.359599 mm")))
sketch15.addConstraint(Sketcher.Constraint("DistanceX", 1, 1, 1, 2, Q("2.828427 mm")))
sketch15.addConstraint(Sketcher.Constraint("DistanceY", 0, 2, -1, 1, Q("44.513412 mm")))
sketch15.addConstraint(Sketcher.Constraint("DistanceX", 0, 2, -1, 1, Q("44.459494 mm")))
pocket11 = doc.addObject("PartDesign::Pocket", "Pocket010")
body.addObject(pocket11)
pocket11.Profile = sketch15
pocket11.Length = 0.5

# Sketch on an angled plane
sketch16 = doc.addObject("Sketcher::SketchObject", "Sketch015")
body.addObject(sketch16)
sketch16.Placement = App.Placement(Vector(36.93761, 0, 36.93761), App.Rotation(Vector(0.707106781, 0, -0.707106781), Vector(0, 0.999999999, 0), Vector(0.707106781, 0, 0.707106781), "ZXY"))
sketch16.addGeometry(Part.LineSegment(Vector(31, -41.5, 0), Vector(31, -44.5, 0)), False)
sketch16.addGeometry(Part.LineSegment(Vector(31, -44.5, 0), Vector(33.9, -44.5, 0)), False)
sketch16.addGeometry(Part.LineSegment(Vector(33.9, -44.5, 0), Vector(33.9, -41.5, 0)), False)
sketch16.addGeometry(Part.LineSegment(Vector(33.9, -41.5, 0), Vector(31, -41.5, 0)), False)
sketch16.addGeometry(Part.LineSegment(Vector(31, -73.4, 0), Vector(31, -76.4, 0)), False)
sketch16.addGeometry(Part.LineSegment(Vector(31, -76.4, 0), Vector(33.9, -76.4, 0)), False)
sketch16.addGeometry(Part.LineSegment(Vector(33.9, -76.4, 0), Vector(33.9, -73.4, 0)), False)
sketch16.addGeometry(Part.LineSegment(Vector(33.9, -73.4, 0), Vector(31, -73.4, 0)), False)
sketch16.addConstraint(Sketcher.Constraint("Coincident", 0, 2, 1, 1))
sketch16.addConstraint(Sketcher.Constraint("Coincident", 1, 2, 2, 1))
sketch16.addConstraint(Sketcher.Constraint("Coincident", 2, 2, 3, 1))
sketch16.addConstraint(Sketcher.Constraint("Coincident", 3, 2, 0, 1))
sketch16.addConstraint(Sketcher.Constraint("Coincident", 4, 2, 5, 1))
sketch16.addConstraint(Sketcher.Constraint("Coincident", 5, 2, 6, 1))
sketch16.addConstraint(Sketcher.Constraint("Coincident", 6, 2, 7, 1))
sketch16.addConstraint(Sketcher.Constraint("Coincident", 7, 2, 4, 1))
sketch16.addConstraint(Sketcher.Constraint("Vertical", 0))
sketch16.addConstraint(Sketcher.Constraint("Horizontal", 1))
sketch16.addConstraint(Sketcher.Constraint("Vertical", 2))
sketch16.addConstraint(Sketcher.Constraint("Horizontal", 3))
sketch16.addConstraint(Sketcher.Constraint("Vertical", 4))
sketch16.addConstraint(Sketcher.Constraint("Horizontal", 5))
sketch16.addConstraint(Sketcher.Constraint("Vertical", 6))
sketch16.addConstraint(Sketcher.Constraint("Horizontal", 7))
sketch16.addConstraint(Sketcher.Constraint("Vertical", 3, 2, 4, 2))
sketch16.addConstraint(Sketcher.Constraint("Vertical", 2, 2, 5, 2))
sketch16.addConstraint(Sketcher.Constraint("Equal", 2, 4))
sketch16.addConstraint(Sketcher.Constraint("DistanceY", 0, 2, 0, 1, Q("3 mm")))
sketch16.addConstraint(Sketcher.Constraint("DistanceY", 4, 2, -1, 1, Q("76.359599 mm")))
sketch16.addConstraint(Sketcher.Constraint("DistanceX", 1, 1, 1, 2, Q("2.828427 mm")))
sketch16.addConstraint(Sketcher.Constraint("DistanceY", 0, 2, -1, 1, Q("44.513412 mm")))
sketch16.addConstraint(Sketcher.Constraint("DistanceX", -1, 1, 0, 2, Q("31.024465 mm")))
pocket12 = doc.addObject("PartDesign::Pocket", "Pocket011")
body.addObject(pocket12)
pocket12.Profile = sketch16
pocket12.Length = 0.5

# Sketch on YZ plane
sketch17 = doc.addObject("Sketcher::SketchObject", "Sketch016")
body.addObject(sketch17)
sketch17.AttachmentSupport = (doc.YZ_Plane, [""])
sketch17.MapMode = "FlatFace"
sketch17.AttachmentOffset = App.Placement(Vector(0, 0, -60.875219), App.Rotation())
sketch17.addGeometry(Part.LineSegment(Vector(-20.7, 5.1, 0), Vector(-32.7, 5.1, 0)), False)
sketch17.addGeometry(Part.ArcOfCircle(Part.Circle(Vector(-32.7, 6.9, 0), Vector(0, 0, 1), 1.8), math.radians(90), math.radians(270)), False)
sketch17.addGeometry(Part.LineSegment(Vector(-32.7, 8.7, 0), Vector(-20.7, 8.7, 0)), False)
sketch17.addGeometry(Part.ArcOfCircle(Part.Circle(Vector(-20.7, 6.9, 0), Vector(0, 0, 1), 1.8), math.radians(-90), math.radians(90)), False)
sketch17.addGeometry(Part.LineSegment(Vector(-37.7, 5.1, 0), Vector(-49.7, 5.1, 0)), False)
sketch17.addGeometry(Part.ArcOfCircle(Part.Circle(Vector(-49.7, 6.9, 0), Vector(0, 0, 1), 1.8), math.radians(90), math.radians(270)), False)
sketch17.addGeometry(Part.LineSegment(Vector(-49.7, 8.7, 0), Vector(-37.7, 8.7, 0)), False)
sketch17.addGeometry(Part.ArcOfCircle(Part.Circle(Vector(-37.7, 6.9, 0), Vector(0, 0, 1), 1.8), math.radians(-90), math.radians(90)), False)
sketch17.addConstraint(Sketcher.Constraint("Tangent", 0, 2, 1, 2))
sketch17.addConstraint(Sketcher.Constraint("Tangent", 1, 1, 2, 1))
sketch17.addConstraint(Sketcher.Constraint("Tangent", 2, 2, 3, 2))
sketch17.addConstraint(Sketcher.Constraint("Tangent", 3, 1, 0, 1))
sketch17.addConstraint(Sketcher.Constraint("Tangent", 4, 2, 5, 2))
sketch17.addConstraint(Sketcher.Constraint("Tangent", 5, 1, 6, 1))
sketch17.addConstraint(Sketcher.Constraint("Tangent", 6, 2, 7, 2))
sketch17.addConstraint(Sketcher.Constraint("Tangent", 7, 1, 4, 1))
sketch17.addConstraint(Sketcher.Constraint("Horizontal", 0))
sketch17.addConstraint(Sketcher.Constraint("Horizontal", 2))
sketch17.addConstraint(Sketcher.Constraint("Horizontal", 4))
sketch17.addConstraint(Sketcher.Constraint("Horizontal", 6))
sketch17.addConstraint(Sketcher.Constraint("Equal", 3, 5))
sketch17.addConstraint(Sketcher.Constraint("Horizontal", 3, 3, 5, 3))
sketch17.addConstraint(Sketcher.Constraint("Equal", 2, 4))
sketch17.addConstraint(Sketcher.Constraint("DistanceX", 0, 2, 0, 1, Q("12 mm")))
sketch17.addConstraint(Sketcher.Constraint("DistanceX", 5, 3, 1, 3, Q("17 mm")))
sketch17.addConstraint(Sketcher.Constraint("Radius", 1, Q("1.785254 mm")))
sketch17.addConstraint(Sketcher.Constraint("DistanceX", 1, 3, -1, 1, Q("32.703608 mm")))
sketch17.addConstraint(Sketcher.Constraint("DistanceY", -1, 1, 1, 3, Q("6.877451 mm")))
pad5 = doc.addObject("PartDesign::Pad", "Pad004")
body.addObject(pad5)
pad5.Profile = sketch17
pad5.Length = 0.5
pad5.Reversed = True

# Sketch on YZ plane
sketch18 = doc.addObject("Sketcher::SketchObject", "Sketch017")
body.addObject(sketch18)
sketch18.AttachmentSupport = (doc.YZ_Plane, [""])
sketch18.MapMode = "FlatFace"
sketch18.AttachmentOffset = App.Placement(Vector(0, 0, -60.875219), App.Rotation())
sketch18.addGeometry(Part.LineSegment(Vector(-65.1, 2, 0), Vector(-69.1, 2, 0)), False)
sketch18.addGeometry(Part.LineSegment(Vector(-69.1, 2, 0), Vector(-69.1, 13, 0)), False)
sketch18.addGeometry(Part.LineSegment(Vector(-69.1, 13, 0), Vector(-65.1, 13, 0)), False)
sketch18.addGeometry(Part.LineSegment(Vector(-65.1, 13, 0), Vector(-65.1, 2, 0)), False)
sketch18.addConstraint(Sketcher.Constraint("Coincident", 0, 2, 1, 1))
sketch18.addConstraint(Sketcher.Constraint("Coincident", 1, 2, 2, 1))
sketch18.addConstraint(Sketcher.Constraint("Coincident", 2, 2, 3, 1))
sketch18.addConstraint(Sketcher.Constraint("Coincident", 3, 2, 0, 1))
sketch18.addConstraint(Sketcher.Constraint("Horizontal", 0))
sketch18.addConstraint(Sketcher.Constraint("Vertical", 1))
sketch18.addConstraint(Sketcher.Constraint("Horizontal", 2))
sketch18.addConstraint(Sketcher.Constraint("Vertical", 3))
sketch18.addConstraint(Sketcher.Constraint("DistanceX", 0, 2, 0, 1, Q("4 mm")))
sketch18.addConstraint(Sketcher.Constraint("DistanceY", 1, 1, 1, 2, Q("11 mm")))
sketch18.addConstraint(Sketcher.Constraint("DistanceY", -1, 1, 0, 2, Q("2 mm")))
sketch18.addConstraint(Sketcher.Constraint("DistanceX", 0, 2, -1, 1, Q("69.142134 mm")))
pocket13 = doc.addObject("PartDesign::Pocket", "Pocket012")
body.addObject(pocket13)
pocket13.Profile = sketch18
pocket13.Length = 0.5
pocket13.Reversed = True

# Sketch on an angled plane
sketch19 = doc.addObject("Sketcher::SketchObject", "Sketch018")
body.addObject(sketch19)
sketch19.Placement = App.Placement(Vector(-36.93761, 0, 36.93761), App.Rotation(Vector(0.707106781, 0, 0.707106781), Vector(0, 0.999999999, 0), Vector(-0.707106781, 0, 0.707106781), "ZXY"))
sketch19.addGeometry(Part.LineSegment(Vector(-33.9, -65.1, 0), Vector(-33.9, -69.1, 0)), False)
sketch19.addGeometry(Part.LineSegment(Vector(-33.9, -69.1, 0), Vector(-31, -69.1, 0)), False)
sketch19.addGeometry(Part.LineSegment(Vector(-31, -69.1, 0), Vector(-31, -65.1, 0)), False)
sketch19.addGeometry(Part.LineSegment(Vector(-31, -65.1, 0), Vector(-33.9, -65.1, 0)), False)
sketch19.addConstraint(Sketcher.Constraint("Coincident", 0, 2, 1, 1))
sketch19.addConstraint(Sketcher.Constraint("Coincident", 1, 2, 2, 1))
sketch19.addConstraint(Sketcher.Constraint("Coincident", 2, 2, 3, 1))
sketch19.addConstraint(Sketcher.Constraint("Coincident", 3, 2, 0, 1))
sketch19.addConstraint(Sketcher.Constraint("Vertical", 0))
sketch19.addConstraint(Sketcher.Constraint("Horizontal", 1))
sketch19.addConstraint(Sketcher.Constraint("Vertical", 2))
sketch19.addConstraint(Sketcher.Constraint("Horizontal", 3))
sketch19.addConstraint(Sketcher.Constraint("DistanceY", 0, 2, 0, 1, Q("4 mm")))
sketch19.addConstraint(Sketcher.Constraint("DistanceX", 1, 1, 1, 2, Q("2.828427 mm")))
sketch19.addConstraint(Sketcher.Constraint("DistanceX", 0, 2, -1, 1, Q("33.852892 mm")))
sketch19.addConstraint(Sketcher.Constraint("DistanceY", 0, 2, -1, 1, Q("69.142134 mm")))
pocket14 = doc.addObject("PartDesign::Pocket", "Pocket013")
body.addObject(pocket14)
pocket14.Profile = sketch19
pocket14.Length = 0.5

# Sketch on an angled plane
sketch20 = doc.addObject("Sketcher::SketchObject", "Sketch019")
body.addObject(sketch20)
sketch20.Placement = App.Placement(Vector(-29.43761, 0, -29.43761), App.Rotation(Vector(-0.707106781, 0, 0.707106781), Vector(0, 0.999999999, 0), Vector(-0.707106781, 0, -0.707106781), "ZXY"))
sketch20.addGeometry(Part.LineSegment(Vector(41.6, -65.1, 0), Vector(41.6, -69.1, 0)), False)
sketch20.addGeometry(Part.LineSegment(Vector(41.6, -69.1, 0), Vector(44.5, -69.1, 0)), False)
sketch20.addGeometry(Part.LineSegment(Vector(44.5, -69.1, 0), Vector(44.5, -65.1, 0)), False)
sketch20.addGeometry(Part.LineSegment(Vector(44.5, -65.1, 0), Vector(41.6, -65.1, 0)), False)
sketch20.addConstraint(Sketcher.Constraint("Coincident", 0, 2, 1, 1))
sketch20.addConstraint(Sketcher.Constraint("Coincident", 1, 2, 2, 1))
sketch20.addConstraint(Sketcher.Constraint("Coincident", 2, 2, 3, 1))
sketch20.addConstraint(Sketcher.Constraint("Coincident", 3, 2, 0, 1))
sketch20.addConstraint(Sketcher.Constraint("Vertical", 0))
sketch20.addConstraint(Sketcher.Constraint("Horizontal", 1))
sketch20.addConstraint(Sketcher.Constraint("Vertical", 2))
sketch20.addConstraint(Sketcher.Constraint("Horizontal", 3))
sketch20.addConstraint(Sketcher.Constraint("DistanceY", 0, 2, 0, 1, Q("4 mm")))
sketch20.addConstraint(Sketcher.Constraint("DistanceX", 1, 1, 1, 2, Q("2.828427 mm")))
sketch20.addConstraint(Sketcher.Constraint("DistanceX", -1, 1, 0, 2, Q("41.631067 mm")))
sketch20.addConstraint(Sketcher.Constraint("DistanceY", 0, 2, -1, 1, Q("69.142134 mm")))
pocket15 = doc.addObject("PartDesign::Pocket", "Pocket014")
body.addObject(pocket15)
pocket15.Profile = sketch20
pocket15.Length = 0.5

# Sketch on XY plane
sketch21 = doc.addObject("Sketcher::SketchObject", "Sketch020")
body.addObject(sketch21)
sketch21.AttachmentSupport = (doc.XY_Plane, [""])
sketch21.MapMode = "FlatFace"
sketch21.AttachmentOffset = App.Placement(Vector(0, 0, 15), App.Rotation())
sketch21.addGeometry(Part.LineSegment(Vector(-4, -23, 0), Vector(-4, -94, 0)), False)
sketch21.addGeometry(Part.LineSegment(Vector(-4, -94, 0), Vector(51, -94, 0)), False)
sketch21.addGeometry(Part.ArcOfCircle(Part.Circle(Vector(51, -86, 0), Vector(0, 0, 1), 8), math.radians(-90), math.radians(0)), False)
sketch21.addGeometry(Part.LineSegment(Vector(59, -86, 0), Vector(59, -11, 0)), False)
sketch21.addGeometry(Part.LineSegment(Vector(59, -11, 0), Vector(8, -11, 0)), False)
sketch21.addGeometry(Part.ArcOfCircle(Part.Circle(Vector(8, -23, 0), Vector(0, 0, 1), 12), math.radians(90), math.radians(180)), False)
sketch21.addConstraint(Sketcher.Constraint("Coincident", 0, 2, 1, 1))
sketch21.addConstraint(Sketcher.Constraint("Tangent", 1, 2, 2, 1))
sketch21.addConstraint(Sketcher.Constraint("Tangent", 2, 2, 3, 1))
sketch21.addConstraint(Sketcher.Constraint("Coincident", 3, 2, 4, 1))
sketch21.addConstraint(Sketcher.Constraint("Tangent", 4, 2, 5, 1))
sketch21.addConstraint(Sketcher.Constraint("Tangent", 5, 2, 0, 1))
sketch21.addConstraint(Sketcher.Constraint("Vertical", 0))
sketch21.addConstraint(Sketcher.Constraint("Horizontal", 1))
sketch21.addConstraint(Sketcher.Constraint("Vertical", 3))
sketch21.addConstraint(Sketcher.Constraint("Horizontal", 4))
sketch21.addConstraint(Sketcher.Constraint("Radius", 2, Q("8 mm")))
sketch21.addConstraint(Sketcher.Constraint("Radius", 5, Q("12 mm")))
sketch21.addConstraint(Sketcher.Constraint("DistanceX", 1, 1, 1, 2, Q("55.221405 mm")))
sketch21.addConstraint(Sketcher.Constraint("DistanceY", 0, 2, 0, 1, Q("71.092887 mm")))
sketch21.addConstraint(Sketcher.Constraint("DistanceX", -1, 1, 2, 3, Q("50.875219 mm")))
sketch21.addConstraint(Sketcher.Constraint("DistanceY", 5, 3, -1, 1, Q("22.755059 mm")))
pad6 = doc.addObject("PartDesign::Pad", "Pad005")
body.addObject(pad6)
pad6.Profile = sketch21
pad6.Length = 3

doc.recompute()
